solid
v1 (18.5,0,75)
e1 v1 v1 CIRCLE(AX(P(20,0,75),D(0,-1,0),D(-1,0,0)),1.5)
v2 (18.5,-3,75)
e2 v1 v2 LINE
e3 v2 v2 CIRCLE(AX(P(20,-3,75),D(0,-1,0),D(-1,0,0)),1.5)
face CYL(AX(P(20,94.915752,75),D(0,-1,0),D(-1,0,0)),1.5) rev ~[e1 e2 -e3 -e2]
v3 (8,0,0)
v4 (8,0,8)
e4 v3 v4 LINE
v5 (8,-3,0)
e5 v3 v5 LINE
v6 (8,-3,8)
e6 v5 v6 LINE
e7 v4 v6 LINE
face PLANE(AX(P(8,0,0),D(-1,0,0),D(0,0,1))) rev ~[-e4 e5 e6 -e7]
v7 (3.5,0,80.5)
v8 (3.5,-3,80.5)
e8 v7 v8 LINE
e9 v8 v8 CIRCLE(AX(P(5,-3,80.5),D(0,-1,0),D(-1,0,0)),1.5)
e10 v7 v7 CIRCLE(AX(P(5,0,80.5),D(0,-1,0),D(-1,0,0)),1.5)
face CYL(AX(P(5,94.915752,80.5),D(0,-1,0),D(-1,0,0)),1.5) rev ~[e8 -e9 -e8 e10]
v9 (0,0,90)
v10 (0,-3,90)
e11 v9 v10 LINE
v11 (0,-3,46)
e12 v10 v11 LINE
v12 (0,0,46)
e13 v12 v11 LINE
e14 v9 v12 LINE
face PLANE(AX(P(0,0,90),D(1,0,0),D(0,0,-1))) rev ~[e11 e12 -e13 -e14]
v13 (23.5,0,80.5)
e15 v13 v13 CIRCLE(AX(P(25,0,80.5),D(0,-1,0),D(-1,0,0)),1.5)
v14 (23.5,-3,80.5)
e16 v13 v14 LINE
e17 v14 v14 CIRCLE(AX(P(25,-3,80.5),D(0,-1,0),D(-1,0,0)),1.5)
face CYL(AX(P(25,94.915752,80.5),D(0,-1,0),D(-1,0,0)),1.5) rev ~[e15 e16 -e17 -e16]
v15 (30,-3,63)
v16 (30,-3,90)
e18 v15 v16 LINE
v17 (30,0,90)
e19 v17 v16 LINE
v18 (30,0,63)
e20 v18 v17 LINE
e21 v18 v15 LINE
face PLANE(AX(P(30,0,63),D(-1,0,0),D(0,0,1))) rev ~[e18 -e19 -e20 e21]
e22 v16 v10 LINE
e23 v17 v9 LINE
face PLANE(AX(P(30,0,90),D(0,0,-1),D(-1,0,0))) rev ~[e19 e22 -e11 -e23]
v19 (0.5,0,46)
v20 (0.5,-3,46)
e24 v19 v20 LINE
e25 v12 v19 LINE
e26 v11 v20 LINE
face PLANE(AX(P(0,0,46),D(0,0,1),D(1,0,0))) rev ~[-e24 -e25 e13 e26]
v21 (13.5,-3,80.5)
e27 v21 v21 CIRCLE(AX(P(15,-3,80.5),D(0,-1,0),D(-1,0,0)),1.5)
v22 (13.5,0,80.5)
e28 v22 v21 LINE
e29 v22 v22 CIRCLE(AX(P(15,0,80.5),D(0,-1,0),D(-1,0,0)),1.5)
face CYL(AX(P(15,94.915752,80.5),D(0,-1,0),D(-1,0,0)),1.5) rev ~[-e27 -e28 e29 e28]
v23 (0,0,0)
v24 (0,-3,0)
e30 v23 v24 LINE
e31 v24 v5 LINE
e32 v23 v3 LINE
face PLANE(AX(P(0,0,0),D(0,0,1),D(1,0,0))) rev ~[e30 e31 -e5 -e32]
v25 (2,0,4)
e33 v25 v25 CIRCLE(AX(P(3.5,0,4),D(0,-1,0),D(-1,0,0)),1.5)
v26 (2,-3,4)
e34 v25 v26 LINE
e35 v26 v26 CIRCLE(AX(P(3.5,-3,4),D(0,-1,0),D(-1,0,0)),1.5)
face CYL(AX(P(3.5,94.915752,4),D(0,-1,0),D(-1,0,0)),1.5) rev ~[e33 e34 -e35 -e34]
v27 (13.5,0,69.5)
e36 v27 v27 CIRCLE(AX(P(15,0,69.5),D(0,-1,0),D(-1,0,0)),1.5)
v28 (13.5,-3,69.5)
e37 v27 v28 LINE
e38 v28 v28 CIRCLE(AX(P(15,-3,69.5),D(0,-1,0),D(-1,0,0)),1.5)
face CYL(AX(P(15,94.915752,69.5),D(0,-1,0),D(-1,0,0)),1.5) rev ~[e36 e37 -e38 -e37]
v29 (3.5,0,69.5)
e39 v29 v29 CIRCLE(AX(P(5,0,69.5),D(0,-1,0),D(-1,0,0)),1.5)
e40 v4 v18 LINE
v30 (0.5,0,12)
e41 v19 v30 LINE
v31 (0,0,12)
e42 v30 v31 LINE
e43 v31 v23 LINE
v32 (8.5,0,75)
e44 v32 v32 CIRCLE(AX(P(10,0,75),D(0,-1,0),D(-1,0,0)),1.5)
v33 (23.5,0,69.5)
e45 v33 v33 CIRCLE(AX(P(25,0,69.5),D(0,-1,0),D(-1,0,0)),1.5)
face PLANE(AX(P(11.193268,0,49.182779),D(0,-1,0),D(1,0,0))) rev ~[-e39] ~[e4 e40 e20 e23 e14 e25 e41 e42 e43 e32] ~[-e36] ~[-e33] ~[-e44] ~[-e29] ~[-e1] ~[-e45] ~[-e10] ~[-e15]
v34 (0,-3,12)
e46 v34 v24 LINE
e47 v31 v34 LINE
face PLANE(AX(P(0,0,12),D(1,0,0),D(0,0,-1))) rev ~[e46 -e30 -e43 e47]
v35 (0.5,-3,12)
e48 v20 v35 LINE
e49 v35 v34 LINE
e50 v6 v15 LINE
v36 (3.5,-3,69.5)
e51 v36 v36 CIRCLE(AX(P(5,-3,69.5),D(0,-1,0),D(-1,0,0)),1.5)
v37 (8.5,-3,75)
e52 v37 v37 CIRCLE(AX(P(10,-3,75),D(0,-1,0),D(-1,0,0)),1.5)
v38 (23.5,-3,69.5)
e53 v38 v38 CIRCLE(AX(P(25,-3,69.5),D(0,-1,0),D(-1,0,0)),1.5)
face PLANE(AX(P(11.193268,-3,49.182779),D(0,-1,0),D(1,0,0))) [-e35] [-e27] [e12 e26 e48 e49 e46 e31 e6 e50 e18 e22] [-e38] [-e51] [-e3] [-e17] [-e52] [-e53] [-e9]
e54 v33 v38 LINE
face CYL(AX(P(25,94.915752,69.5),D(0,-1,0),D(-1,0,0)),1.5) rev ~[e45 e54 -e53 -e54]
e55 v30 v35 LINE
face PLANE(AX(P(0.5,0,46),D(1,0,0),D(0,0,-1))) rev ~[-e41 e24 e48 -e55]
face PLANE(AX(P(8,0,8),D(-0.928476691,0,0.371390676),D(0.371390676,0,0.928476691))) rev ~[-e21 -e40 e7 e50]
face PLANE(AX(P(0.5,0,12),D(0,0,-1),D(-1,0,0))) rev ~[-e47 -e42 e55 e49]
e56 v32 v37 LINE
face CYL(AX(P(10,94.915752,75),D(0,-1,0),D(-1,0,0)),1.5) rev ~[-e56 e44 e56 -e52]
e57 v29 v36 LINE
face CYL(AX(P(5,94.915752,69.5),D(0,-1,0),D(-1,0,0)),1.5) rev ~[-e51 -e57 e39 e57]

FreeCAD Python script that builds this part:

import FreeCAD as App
import Part
import Sketcher

doc = App.newDocument("Part")
body = doc.addObject("PartDesign::Body", "Body")

sketch1 = body.newObject("Sketcher::SketchObject", "Sketch")
sketch1.AttachmentSupport = (doc.getObject("XZ_Plane"), [""])
sketch1.MapMode = "FlatFace"
sketch1.addGeometry([
    Part.LineSegment(App.Vector(0, 12, 0), App.Vector(0, 0, 0)),
    Part.LineSegment(App.Vector(0, 0, 0), App.Vector(8, 0, 0)),
    Part.LineSegment(App.Vector(8, 0, 0), App.Vector(8, 8, 0)),
    Part.LineSegment(App.Vector(8, 8, 0), App.Vector(30, 63, 0)),
    Part.LineSegment(App.Vector(30, 63, 0), App.Vector(30, 90, 0)),
    Part.LineSegment(App.Vector(30, 90, 0), App.Vector(0, 90, 0)),
    Part.LineSegment(App.Vector(0, 90, 0), App.Vector(0, 46, 0)),
    Part.LineSegment(App.Vector(0, 46, 0), App.Vector(0.5, 46, 0)),
    Part.LineSegment(App.Vector(0.5, 46, 0), App.Vector(0.5, 12, 0)),
    Part.LineSegment(App.Vector(0.5, 12, 0), App.Vector(0, 12, 0)),
], False)
sketch1.addConstraint([
    Sketcher.Constraint("Coincident", 0, 2, 1, 1),
    Sketcher.Constraint("Coincident", 1, 2, 2, 1),
    Sketcher.Constraint("Coincident", 2, 2, 3, 1),
    Sketcher.Constraint("Coincident", 3, 2, 4, 1),
    Sketcher.Constraint("Coincident", 4, 2, 5, 1),
    Sketcher.Constraint("Coincident", 5, 2, 6, 1),
    Sketcher.Constraint("Coincident", 6, 2, 7, 1),
    Sketcher.Constraint("Coincident", 7, 2, 8, 1),
    Sketcher.Constraint("Coincident", 8, 2, 9, 1),
    Sketcher.Constraint("Coincident", 9, 2, 0, 1),
    Sketcher.Constraint("Vertical", 0),
    Sketcher.Constraint("Horizontal", 1),
    Sketcher.Constraint("Vertical", 2),
    Sketcher.Constraint("Vertical", 4),
    Sketcher.Constraint("Horizontal", 5),
    Sketcher.Constraint("Vertical", 6),
    Sketcher.Constraint("Horizontal", 7),
    Sketcher.Constraint("Vertical", 8),
    Sketcher.Constraint("Horizontal", 9),
    Sketcher.Constraint("Coincident", 0, 2, -1, 1),
    Sketcher.Constraint("PointOnObject", 5, 2, -2),
    Sketcher.Constraint("Equal", 1, 2),
    Sketcher.Constraint("DistanceX", 1, 1, 1, 2, 8.0),
    Sketcher.Constraint("DistanceX", 5, 2, 5, 1, 30.0),
    Sketcher.Constraint("DistanceY", 0, 2, 0, 1, 12.0),
    Sketcher.Constraint("DistanceY", 4, 1, 4, 2, 27.0),
    Sketcher.Constraint("DistanceY", 6, 2, 6, 1, 44.0),
    Sketcher.Constraint("DistanceY", 8, 2, 8, 1, 34.0),
    Sketcher.Constraint("DistanceX", 7, 1, 7, 2, 0.5),
])
pad1 = body.newObject("PartDesign::Pad", "Pad")
pad1.Profile = sketch1
pad1.Length = 3

sketch2 = body.newObject("Sketcher::SketchObject", "Sketch001")
sketch2.AttachmentSupport = (doc.getObject("XZ_Plane"), [""])
sketch2.MapMode = "FlatFace"
sketch2.addGeometry([
    Part.Circle(App.Vector(5, 80.5, 0), App.Vector(0, 0, 1), 1.5),
    Part.Circle(App.Vector(15, 80.5, 0), App.Vector(0, 0, 1), 1.5),
    Part.Circle(App.Vector(25, 80.5, 0), App.Vector(0, 0, 1), 1.5),
    Part.Circle(App.Vector(20, 75, 0), App.Vector(0, 0, 1), 1.5),
    Part.Circle(App.Vector(10, 75, 0), App.Vector(0, 0, 1), 1.5),
    Part.Circle(App.Vector(5, 69.5, 0), App.Vector(0, 0, 1), 1.5),
    Part.Circle(App.Vector(25, 69.5, 0), App.Vector(0, 0, 1), 1.5),
    Part.Circle(App.Vector(15, 69.5, 0), App.Vector(0, 0, 1), 1.5),
    Part.Circle(App.Vector(3.5, 4, 0), App.Vector(0, 0, 1), 1.5),
], False)
sketch2.addConstraint([
    Sketcher.Constraint("Equal", 0, 1),
    Sketcher.Constraint("Equal", 1, 2),
    Sketcher.Constraint("Equal", 2, 3),
    Sketcher.Constraint("Equal", 3, 4),
    Sketcher.Constraint("Equal", 4, 5),
    Sketcher.Constraint("Equal", 5, 6),
    Sketcher.Constraint("Equal", 6, 7),
    Sketcher.Constraint("Equal", 7, 8),
    Sketcher.Constraint("Horizontal", 0, 3, 1, 3),
    Sketcher.Constraint("Horizontal", 1, 3, 2, 3),
    Sketcher.Constraint("Horizontal", 3, 3, 4, 3),
    Sketcher.Constraint("Horizontal", 5, 3, 6, 3),
    Sketcher.Constraint("Horizontal", 6, 3, 7, 3),
    Sketcher.Constraint("Vertical", 0, 3, 5, 3),
    Sketcher.Constraint("Vertical", 2, 3, 6, 3),
    Sketcher.Constraint("Vertical", 1, 3, 7, 3),
    Sketcher.Constraint("Diameter", 0, 3.0),
    Sketcher.Constraint("DistanceX", -1, 1, 0, 3, 5.0),
    Sketcher.Constraint("DistanceX", -1, 1, 1, 3, 15.0),
    Sketcher.Constraint("DistanceX", -1, 1, 2, 3, 25.0),
    Sketcher.Constraint("DistanceX", -1, 1, 3, 3, 20.0),
    Sketcher.Constraint("DistanceY", -1, 1, 3, 3, 75.0),
    Sketcher.Constraint("DistanceX", -1, 1, 4, 3, 10.0),
    Sketcher.Constraint("DistanceY", -1, 1, 8, 3, 4.0),
    Sketcher.Constraint("DistanceY", 5, 3, 0, 3, 11.0),
    Sketcher.Constraint("DistanceY", -1, 1, 0, 3, 80.5),
    Sketcher.Constraint("DistanceX", -1, 1, 8, 3, 3.5),
])
doc.recompute()
hole = body.newObject("PartDesign::Hole", "Hole")
hole.Profile = sketch2
hole.ThreadType = "None"
hole.Diameter = 3
hole.DepthType = "ThroughAll"
hole.Reversed = True

doc.recompute()
